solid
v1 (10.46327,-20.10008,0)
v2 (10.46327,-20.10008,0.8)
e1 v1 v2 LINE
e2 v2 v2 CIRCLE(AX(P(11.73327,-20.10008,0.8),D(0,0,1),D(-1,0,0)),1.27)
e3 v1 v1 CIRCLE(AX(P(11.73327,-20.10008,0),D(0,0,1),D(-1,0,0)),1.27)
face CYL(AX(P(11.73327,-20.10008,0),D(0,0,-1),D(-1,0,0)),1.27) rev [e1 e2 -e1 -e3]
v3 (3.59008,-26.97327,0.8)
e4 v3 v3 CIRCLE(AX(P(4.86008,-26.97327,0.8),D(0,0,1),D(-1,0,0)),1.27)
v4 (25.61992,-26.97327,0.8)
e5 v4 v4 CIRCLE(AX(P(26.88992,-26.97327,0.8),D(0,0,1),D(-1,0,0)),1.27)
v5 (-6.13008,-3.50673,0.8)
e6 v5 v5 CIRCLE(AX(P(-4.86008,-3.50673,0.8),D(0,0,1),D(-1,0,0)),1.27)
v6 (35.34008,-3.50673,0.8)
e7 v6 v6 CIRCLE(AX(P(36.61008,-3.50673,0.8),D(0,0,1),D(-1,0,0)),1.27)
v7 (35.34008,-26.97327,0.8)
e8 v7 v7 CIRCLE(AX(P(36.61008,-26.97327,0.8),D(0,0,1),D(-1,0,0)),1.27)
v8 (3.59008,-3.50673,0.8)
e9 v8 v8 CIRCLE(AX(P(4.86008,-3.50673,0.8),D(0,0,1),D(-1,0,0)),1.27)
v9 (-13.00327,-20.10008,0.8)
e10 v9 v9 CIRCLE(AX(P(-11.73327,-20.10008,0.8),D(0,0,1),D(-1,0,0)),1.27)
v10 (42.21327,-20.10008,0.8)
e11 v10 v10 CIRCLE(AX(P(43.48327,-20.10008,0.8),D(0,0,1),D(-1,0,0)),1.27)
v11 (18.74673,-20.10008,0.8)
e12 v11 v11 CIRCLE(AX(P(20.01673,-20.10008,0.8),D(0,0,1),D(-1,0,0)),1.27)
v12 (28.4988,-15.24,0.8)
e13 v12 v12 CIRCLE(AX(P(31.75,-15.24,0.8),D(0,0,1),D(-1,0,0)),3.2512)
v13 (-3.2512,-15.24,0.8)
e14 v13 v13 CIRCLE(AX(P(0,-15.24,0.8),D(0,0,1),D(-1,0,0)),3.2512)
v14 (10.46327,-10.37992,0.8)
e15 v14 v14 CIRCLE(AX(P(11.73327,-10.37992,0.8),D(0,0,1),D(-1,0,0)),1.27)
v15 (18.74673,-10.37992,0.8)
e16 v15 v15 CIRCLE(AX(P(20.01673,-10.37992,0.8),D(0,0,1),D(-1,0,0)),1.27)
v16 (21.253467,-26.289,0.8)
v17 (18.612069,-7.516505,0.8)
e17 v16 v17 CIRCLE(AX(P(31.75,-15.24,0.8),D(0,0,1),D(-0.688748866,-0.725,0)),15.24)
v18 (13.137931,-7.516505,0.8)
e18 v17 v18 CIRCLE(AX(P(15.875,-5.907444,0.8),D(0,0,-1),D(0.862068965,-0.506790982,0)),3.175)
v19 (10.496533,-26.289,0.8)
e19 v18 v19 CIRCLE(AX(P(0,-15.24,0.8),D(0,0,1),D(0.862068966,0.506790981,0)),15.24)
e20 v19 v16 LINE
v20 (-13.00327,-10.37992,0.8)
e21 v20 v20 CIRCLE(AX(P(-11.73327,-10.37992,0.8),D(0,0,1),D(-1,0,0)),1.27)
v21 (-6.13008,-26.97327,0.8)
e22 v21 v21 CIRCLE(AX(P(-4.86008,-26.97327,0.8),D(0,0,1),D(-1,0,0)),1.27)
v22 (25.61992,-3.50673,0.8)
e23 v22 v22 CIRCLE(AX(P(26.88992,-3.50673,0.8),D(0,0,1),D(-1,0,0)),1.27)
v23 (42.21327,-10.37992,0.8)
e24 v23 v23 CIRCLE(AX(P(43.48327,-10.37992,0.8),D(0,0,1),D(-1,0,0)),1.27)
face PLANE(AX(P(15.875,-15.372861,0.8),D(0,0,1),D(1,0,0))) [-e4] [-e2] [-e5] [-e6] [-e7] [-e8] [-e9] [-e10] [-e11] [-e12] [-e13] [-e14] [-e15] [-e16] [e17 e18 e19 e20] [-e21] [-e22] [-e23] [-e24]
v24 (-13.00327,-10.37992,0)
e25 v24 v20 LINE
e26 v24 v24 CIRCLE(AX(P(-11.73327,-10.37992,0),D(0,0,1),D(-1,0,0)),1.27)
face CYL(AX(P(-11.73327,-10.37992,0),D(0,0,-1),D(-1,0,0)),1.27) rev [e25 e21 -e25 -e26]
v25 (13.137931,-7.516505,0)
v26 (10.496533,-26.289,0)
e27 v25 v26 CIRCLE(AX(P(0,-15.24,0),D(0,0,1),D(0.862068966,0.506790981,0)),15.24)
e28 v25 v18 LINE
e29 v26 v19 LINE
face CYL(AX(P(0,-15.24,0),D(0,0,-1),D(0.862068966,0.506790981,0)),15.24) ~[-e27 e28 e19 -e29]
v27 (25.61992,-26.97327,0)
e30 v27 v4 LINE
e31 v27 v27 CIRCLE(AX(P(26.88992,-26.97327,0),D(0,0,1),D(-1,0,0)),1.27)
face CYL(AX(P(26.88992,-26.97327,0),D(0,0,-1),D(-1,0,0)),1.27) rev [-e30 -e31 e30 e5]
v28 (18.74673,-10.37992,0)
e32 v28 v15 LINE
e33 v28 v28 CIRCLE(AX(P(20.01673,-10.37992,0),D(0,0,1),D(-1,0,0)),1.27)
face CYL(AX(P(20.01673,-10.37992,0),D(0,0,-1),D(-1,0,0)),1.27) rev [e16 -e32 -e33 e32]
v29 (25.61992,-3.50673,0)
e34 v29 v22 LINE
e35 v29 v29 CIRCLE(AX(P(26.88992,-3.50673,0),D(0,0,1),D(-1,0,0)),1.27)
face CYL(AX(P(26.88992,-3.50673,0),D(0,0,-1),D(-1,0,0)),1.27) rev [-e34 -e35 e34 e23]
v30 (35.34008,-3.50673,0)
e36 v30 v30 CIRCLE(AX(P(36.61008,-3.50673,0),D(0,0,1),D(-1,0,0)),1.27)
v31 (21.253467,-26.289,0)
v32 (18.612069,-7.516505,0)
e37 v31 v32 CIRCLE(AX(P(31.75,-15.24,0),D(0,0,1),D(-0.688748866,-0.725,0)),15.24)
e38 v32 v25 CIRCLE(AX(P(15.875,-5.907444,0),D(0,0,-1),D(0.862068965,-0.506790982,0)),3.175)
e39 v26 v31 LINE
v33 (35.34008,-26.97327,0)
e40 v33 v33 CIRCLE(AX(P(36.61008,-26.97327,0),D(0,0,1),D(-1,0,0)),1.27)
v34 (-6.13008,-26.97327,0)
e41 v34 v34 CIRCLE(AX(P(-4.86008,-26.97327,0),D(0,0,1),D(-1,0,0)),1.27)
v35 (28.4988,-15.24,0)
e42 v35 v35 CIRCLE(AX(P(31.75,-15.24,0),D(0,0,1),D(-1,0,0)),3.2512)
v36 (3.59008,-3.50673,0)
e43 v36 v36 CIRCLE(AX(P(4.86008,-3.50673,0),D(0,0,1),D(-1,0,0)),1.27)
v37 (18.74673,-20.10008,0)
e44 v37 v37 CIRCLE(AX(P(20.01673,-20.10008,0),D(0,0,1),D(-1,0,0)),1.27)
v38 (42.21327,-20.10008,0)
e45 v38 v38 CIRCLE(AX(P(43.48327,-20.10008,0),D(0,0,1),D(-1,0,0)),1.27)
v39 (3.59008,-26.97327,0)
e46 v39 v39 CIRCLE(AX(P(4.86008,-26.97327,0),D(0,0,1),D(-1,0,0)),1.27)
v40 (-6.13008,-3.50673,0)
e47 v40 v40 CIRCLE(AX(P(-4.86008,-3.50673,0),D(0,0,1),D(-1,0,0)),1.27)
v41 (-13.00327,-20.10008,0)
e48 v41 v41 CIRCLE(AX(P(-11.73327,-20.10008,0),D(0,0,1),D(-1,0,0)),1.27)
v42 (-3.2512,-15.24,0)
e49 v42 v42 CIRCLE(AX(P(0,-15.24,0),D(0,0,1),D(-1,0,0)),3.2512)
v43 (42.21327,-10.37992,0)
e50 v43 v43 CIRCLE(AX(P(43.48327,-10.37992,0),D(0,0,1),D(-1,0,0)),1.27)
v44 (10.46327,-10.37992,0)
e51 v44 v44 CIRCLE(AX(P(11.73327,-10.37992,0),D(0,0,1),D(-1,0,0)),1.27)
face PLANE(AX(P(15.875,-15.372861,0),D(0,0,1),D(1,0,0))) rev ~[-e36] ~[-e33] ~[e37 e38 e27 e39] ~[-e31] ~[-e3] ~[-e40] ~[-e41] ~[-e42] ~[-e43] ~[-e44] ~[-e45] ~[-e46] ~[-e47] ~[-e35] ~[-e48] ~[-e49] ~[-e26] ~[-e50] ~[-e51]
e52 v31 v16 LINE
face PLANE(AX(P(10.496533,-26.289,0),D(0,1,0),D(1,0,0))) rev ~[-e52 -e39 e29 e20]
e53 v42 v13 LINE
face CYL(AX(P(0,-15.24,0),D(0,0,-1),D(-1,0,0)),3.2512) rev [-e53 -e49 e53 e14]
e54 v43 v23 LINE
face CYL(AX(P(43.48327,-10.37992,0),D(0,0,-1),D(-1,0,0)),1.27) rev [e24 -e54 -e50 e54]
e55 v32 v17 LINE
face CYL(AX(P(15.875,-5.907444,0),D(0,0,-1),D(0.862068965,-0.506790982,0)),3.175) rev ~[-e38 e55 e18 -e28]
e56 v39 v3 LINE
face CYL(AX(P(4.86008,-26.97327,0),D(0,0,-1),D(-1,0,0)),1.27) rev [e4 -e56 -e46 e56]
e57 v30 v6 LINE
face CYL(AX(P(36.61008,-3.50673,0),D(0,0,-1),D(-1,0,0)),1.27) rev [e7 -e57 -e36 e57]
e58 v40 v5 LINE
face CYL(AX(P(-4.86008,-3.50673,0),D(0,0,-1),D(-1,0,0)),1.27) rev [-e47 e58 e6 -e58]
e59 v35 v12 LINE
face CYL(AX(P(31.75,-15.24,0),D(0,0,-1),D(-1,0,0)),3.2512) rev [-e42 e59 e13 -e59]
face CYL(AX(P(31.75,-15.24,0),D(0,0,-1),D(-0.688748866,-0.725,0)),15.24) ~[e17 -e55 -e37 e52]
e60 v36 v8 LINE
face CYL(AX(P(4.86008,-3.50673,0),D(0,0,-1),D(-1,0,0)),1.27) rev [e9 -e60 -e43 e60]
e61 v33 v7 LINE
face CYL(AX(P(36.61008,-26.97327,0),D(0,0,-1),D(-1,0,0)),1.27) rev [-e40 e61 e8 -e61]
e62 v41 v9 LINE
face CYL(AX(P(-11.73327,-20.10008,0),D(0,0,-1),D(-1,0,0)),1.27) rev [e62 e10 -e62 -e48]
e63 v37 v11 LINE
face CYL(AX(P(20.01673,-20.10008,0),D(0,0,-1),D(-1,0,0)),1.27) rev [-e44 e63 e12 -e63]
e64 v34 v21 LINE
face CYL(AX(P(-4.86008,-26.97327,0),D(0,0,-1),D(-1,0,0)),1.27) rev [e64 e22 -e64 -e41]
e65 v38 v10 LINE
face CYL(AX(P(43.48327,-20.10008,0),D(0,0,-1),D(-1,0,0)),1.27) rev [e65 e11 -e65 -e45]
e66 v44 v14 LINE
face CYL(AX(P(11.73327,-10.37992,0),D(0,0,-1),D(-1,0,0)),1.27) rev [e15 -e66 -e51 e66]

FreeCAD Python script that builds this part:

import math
import FreeCAD as App
import Part
import Sketcher
from FreeCAD import Vector
Q = App.Units.Quantity

doc = App.newDocument("Part")
body = doc.addObject("PartDesign::Body", "Body")

sketch1 = doc.addObject("Sketcher::SketchObject", "Sketch")
body.addObject(sketch1)
sketch1.AttachmentSupport = (doc.XY_Plane, [""])
sketch1.MapMode = "FlatFace"
sketch1.addGeometry([
    Part.ArcOfCircle(Part.Circle(Vector(31.75, -15.24, 0), Vector(0, 0, 1), 15.24), math.radians(-133.531152), math.radians(149.549686)),
    Part.ArcOfCircle(Part.Circle(Vector(15.875, -5.907444, 0), Vector(0, 0, 1), 3.175), math.radians(-149.549686), math.radians(-30.450314)),
    Part.ArcOfCircle(Part.Circle(Vector(0, -15.24, 0), Vector(0, 0, 1), 15.24), math.radians(30.450314), math.radians(313.531152)),
    Part.LineSegment(Vector(10.496533, -26.289, 0), Vector(21.253467, -26.289, 0)),
    Part.Circle(Vector(-4.86008, -26.97327, 0), Vector(0, 0, 1), 1.27),
    Part.Circle(Vector(4.86008, -26.97327, 0), Vector(0, 0, 1), 1.27),
    Part.Circle(Vector(-11.73327, -20.10008, 0), Vector(0, 0, 1), 1.27),
    Part.Circle(Vector(11.73327, -20.10008, 0), Vector(0, 0, 1), 1.27),
    Part.Circle(Vector(26.88992, -26.97327, 0), Vector(0, 0, 1), 1.27),
    Part.Circle(Vector(36.61008, -26.97327, 0), Vector(0, 0, 1), 1.27),
    Part.Circle(Vector(20.01673, -20.10008, 0), Vector(0, 0, 1), 1.27),
    Part.Circle(Vector(43.48327, -20.10008, 0), Vector(0, 0, 1), 1.27),
    Part.Circle(Vector(0, -15.24, 0), Vector(0, 0, 1), 3.2512),
    Part.Circle(Vector(-11.73327, -10.37992, 0), Vector(0, 0, 1), 1.27),
    Part.Circle(Vector(11.73327, -10.37992, 0), Vector(0, 0, 1), 1.27),
    Part.Circle(Vector(-4.86008, -3.50673, 0), Vector(0, 0, 1), 1.27),
    Part.Circle(Vector(4.86008, -3.50673, 0), Vector(0, 0, 1), 1.27),
    Part.Circle(Vector(20.01673, -10.37992, 0), Vector(0, 0, 1), 1.27),
    Part.Circle(Vector(31.75, -15.24, 0), Vector(0, 0, 1), 3.2512),
    Part.Circle(Vector(43.48327, -10.37992, 0), Vector(0, 0, 1), 1.27),
    Part.Circle(Vector(26.88992, -3.50673, 0), Vector(0, 0, 1), 1.27),
    Part.Circle(Vector(36.61008, -3.50673, 0), Vector(0, 0, 1), 1.27),
], False)
sketch1.addConstraint([
    Sketcher.Constraint("Tangent", 0, 2, 1, 2),
    Sketcher.Constraint("Tangent", 1, 1, 2, 1),
    Sketcher.Constraint("Coincident", 2, 2, 3, 1),
    Sketcher.Constraint("Coincident", 3, 2, 0, 1),
    Sketcher.Constraint("Horizontal", 3),
    Sketcher.Constraint("Coincident", 12, 3, 2, 3),
    Sketcher.Constraint("Coincident", 18, 3, 0, 3),
    Sketcher.Constraint("Equal", 0, 2),
    Sketcher.Constraint("Equal", 4, 5),
    Sketcher.Constraint("Equal", 5, 6),
    Sketcher.Constraint("Equal", 6, 7),
    Sketcher.Constraint("Equal", 7, 8),
    Sketcher.Constraint("Equal", 8, 9),
    Sketcher.Constraint("Equal", 9, 10),
    Sketcher.Constraint("Equal", 10, 11),
    Sketcher.Constraint("Equal", 11, 13),
    Sketcher.Constraint("Equal", 13, 14),
    Sketcher.Constraint("Equal", 14, 15),
    Sketcher.Constraint("Equal", 15, 16),
    Sketcher.Constraint("Equal", 16, 17),
    Sketcher.Constraint("Equal", 12, 18),
    Sketcher.Constraint("Equal", 17, 19),
    Sketcher.Constraint("Equal", 19, 20),
    Sketcher.Constraint("Equal", 20, 21),
    Sketcher.Constraint("Symmetric", 4, 3, 5, 3, -2),
    Sketcher.Constraint("Symmetric", 6, 3, 7, 3, -2),
    Sketcher.Constraint("Symmetric", 13, 3, 14, 3, -2),
    Sketcher.Constraint("Symmetric", 15, 3, 16, 3, -2),
    Sketcher.Constraint("PointOnObject", 2, 3, -2),
    Sketcher.Constraint("Horizontal", 0, 3, 2, 3),
    Sketcher.Constraint("Horizontal", 5, 3, 8, 3),
    Sketcher.Constraint("Horizontal", 8, 3, 9, 3),
    Sketcher.Constraint("Horizontal", 7, 3, 10, 3),
    Sketcher.Constraint("Horizontal", 10, 3, 11, 3),
    Sketcher.Constraint("Horizontal", 14, 3, 17, 3),
    Sketcher.Constraint("Horizontal", 17, 3, 19, 3),
    Sketcher.Constraint("Horizontal", 16, 3, 20, 3),
    Sketcher.Constraint("Horizontal", 20, 3, 21, 3),
    Sketcher.Constraint("Vertical", 6, 3, 13, 3),
    Sketcher.Constraint("Vertical", 4, 3, 15, 3),
    Sketcher.Constraint("Vertical", 10, 3, 17, 3),
    Sketcher.Constraint("Vertical", 11, 3, 19, 3),
    Sketcher.Constraint("Vertical", 8, 3, 20, 3),
    Sketcher.Constraint("Vertical", 9, 3, 21, 3),
    Sketcher.Constraint("Diameter", 4, Q("0.1 in")),
    Sketcher.Constraint("Radius", 0, Q("0.6 in")),
    Sketcher.Constraint("Diameter", 12, Q("0.256 in")),
    Sketcher.Constraint("Radius", 1, Q("0.125 in")),
    Sketcher.Constraint("DistanceY", 0, 3, -1, 1, Q("0.6 in")),
    Sketcher.Constraint("DistanceX", -1, 1, 0, 3, Q("1.25 in")),
    Sketcher.Constraint("DistanceX", 5, 3, 9, 3, Q("1.25 in")),
    Sketcher.Constraint("DistanceY", 2, 2, -1, 1, Q("1.035 in")),
    Sketcher.Constraint("DistanceX", 14, 3, 0, 2, Q("6.878799 mm")),
    Sketcher.Constraint("DistanceX", 1, 1, 17, 3, Q("6.878799 mm")),
    Sketcher.Constraint("DistanceX", 4, 3, -1, 1, Q("4.86008 mm")),
    Sketcher.Constraint("DistanceY", 4, 3, -1, 1, Q("26.97327 mm")),
    Sketcher.Constraint("DistanceY", 6, 3, -1, 1, Q("20.10008 mm")),
    Sketcher.Constraint("DistanceX", -1, 1, 8, 3, Q("26.88992 mm")),
    Sketcher.Constraint("DistanceX", -1, 1, 11, 3, Q("43.48327 mm")),
    Sketcher.Constraint("DistanceY", 13, 3, -1, 1, Q("10.37992 mm")),
    Sketcher.Constraint("DistanceY", 15, 3, -1, 1, Q("3.50673 mm")),
])
pad1 = doc.addObject("PartDesign::Pad", "Pad")
body.addObject(pad1)
pad1.Profile = sketch1
pad1.Length = 0.8

doc.recompute()
